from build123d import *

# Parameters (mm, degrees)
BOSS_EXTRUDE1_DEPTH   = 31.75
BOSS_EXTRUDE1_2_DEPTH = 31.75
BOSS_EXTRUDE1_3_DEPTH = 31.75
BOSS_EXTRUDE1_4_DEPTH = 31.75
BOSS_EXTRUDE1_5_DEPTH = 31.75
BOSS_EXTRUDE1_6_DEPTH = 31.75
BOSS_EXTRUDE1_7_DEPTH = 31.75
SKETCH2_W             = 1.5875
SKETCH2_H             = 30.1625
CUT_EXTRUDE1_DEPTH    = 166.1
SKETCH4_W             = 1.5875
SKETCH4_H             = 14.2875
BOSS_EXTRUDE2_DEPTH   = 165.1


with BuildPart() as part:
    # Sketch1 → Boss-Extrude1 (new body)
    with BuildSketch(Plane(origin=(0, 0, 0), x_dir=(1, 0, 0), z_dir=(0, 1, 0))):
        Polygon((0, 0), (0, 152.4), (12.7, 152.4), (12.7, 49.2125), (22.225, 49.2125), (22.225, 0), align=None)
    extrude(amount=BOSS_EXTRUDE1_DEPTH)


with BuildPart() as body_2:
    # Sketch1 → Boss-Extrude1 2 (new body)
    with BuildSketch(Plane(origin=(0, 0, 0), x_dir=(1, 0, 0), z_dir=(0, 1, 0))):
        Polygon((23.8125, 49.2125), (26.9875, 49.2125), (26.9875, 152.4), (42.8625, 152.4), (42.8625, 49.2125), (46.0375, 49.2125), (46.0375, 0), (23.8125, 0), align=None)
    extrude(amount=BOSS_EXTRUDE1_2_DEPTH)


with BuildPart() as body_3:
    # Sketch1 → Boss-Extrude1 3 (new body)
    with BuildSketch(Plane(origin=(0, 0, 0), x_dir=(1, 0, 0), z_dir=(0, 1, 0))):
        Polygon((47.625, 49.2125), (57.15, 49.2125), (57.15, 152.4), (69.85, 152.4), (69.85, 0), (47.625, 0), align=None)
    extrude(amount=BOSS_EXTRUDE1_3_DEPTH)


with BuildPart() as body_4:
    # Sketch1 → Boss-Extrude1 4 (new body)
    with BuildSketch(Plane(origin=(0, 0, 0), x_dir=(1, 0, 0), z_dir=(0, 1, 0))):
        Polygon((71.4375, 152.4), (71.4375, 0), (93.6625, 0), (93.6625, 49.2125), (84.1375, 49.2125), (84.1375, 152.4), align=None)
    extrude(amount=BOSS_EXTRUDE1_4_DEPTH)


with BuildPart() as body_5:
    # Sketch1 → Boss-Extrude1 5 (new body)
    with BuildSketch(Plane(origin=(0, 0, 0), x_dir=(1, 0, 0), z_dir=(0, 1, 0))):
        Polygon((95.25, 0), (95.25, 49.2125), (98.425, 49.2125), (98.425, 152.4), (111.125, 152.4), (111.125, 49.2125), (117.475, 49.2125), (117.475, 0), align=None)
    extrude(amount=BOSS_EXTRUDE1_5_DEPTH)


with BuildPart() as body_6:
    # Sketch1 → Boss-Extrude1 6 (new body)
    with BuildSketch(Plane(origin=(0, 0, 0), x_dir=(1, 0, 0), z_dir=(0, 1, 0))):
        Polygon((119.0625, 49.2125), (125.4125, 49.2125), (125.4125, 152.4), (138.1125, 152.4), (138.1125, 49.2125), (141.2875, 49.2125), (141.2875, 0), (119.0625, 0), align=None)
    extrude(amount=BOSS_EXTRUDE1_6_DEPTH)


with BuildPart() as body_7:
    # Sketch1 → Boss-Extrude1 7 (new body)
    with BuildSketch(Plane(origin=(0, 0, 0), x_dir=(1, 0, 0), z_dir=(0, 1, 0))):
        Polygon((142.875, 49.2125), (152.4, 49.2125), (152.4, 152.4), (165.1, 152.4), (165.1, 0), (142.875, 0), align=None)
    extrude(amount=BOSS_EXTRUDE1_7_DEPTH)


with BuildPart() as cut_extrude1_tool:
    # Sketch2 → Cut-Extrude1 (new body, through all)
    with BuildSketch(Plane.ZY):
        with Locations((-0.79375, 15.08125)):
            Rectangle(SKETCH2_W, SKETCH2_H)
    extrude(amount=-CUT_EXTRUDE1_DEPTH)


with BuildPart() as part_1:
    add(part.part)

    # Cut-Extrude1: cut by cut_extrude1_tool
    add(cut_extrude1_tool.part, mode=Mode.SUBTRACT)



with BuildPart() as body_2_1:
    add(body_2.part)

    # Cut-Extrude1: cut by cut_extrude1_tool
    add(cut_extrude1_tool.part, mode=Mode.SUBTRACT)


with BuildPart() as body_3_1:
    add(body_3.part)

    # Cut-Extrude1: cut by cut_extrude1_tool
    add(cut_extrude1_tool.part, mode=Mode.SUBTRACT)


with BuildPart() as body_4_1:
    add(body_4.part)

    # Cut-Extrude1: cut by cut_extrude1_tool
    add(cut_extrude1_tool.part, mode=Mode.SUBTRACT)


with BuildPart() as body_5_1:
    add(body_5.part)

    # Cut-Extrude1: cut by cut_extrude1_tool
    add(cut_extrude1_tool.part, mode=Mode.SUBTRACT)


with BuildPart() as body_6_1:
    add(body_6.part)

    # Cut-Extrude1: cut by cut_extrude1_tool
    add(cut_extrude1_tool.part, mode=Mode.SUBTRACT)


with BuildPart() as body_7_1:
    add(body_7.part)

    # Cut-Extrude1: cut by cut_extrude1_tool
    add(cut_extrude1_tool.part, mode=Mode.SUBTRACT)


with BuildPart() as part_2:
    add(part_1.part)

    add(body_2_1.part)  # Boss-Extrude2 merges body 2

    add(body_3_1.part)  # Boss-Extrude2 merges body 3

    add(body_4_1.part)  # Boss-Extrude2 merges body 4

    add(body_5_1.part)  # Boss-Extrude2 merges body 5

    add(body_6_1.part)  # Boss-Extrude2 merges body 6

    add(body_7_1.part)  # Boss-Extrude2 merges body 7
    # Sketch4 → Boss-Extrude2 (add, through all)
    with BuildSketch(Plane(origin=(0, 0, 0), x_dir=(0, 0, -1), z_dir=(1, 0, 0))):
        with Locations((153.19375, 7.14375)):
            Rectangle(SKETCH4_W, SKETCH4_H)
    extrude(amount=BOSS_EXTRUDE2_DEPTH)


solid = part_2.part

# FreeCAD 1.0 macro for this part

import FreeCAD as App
import Part
import Sketcher
Q = App.Units.Quantity


def add_polygon(sketch, points):
    """Adds a closed chain of lines whose ends are joined by coincident constraints."""
    first, n = sketch.GeometryCount, len(points)
    for a, b in zip(points, points[1:] + points[:1]):
        sketch.addGeometry(Part.LineSegment(App.Vector(*a, 0), App.Vector(*b, 0)), False)
    for i in range(n):
        sketch.addConstraint(Sketcher.Constraint("Coincident", first + i, 2, first + (i + 1) % n, 1))

doc = App.newDocument("Part")
params = doc.addObject("Spreadsheet::Sheet", "Params")
for row, (alias, value) in enumerate([
    ("sketch1_height", "6 in"),
    ("sketch1_width", "0.5 in"),
    ("sketch1_width2", "0.875 in"),
    ("sketch1_height2", "1.9375 in"),
    ("pad1_length", "1.25 in"),
    ("sketch2_width", "0.125 in"),
    ("sketch2_width2", "0.875 in"),
    ("sketch2_height", "1.9375 in"),
    ("pad2_length", "1.25 in"),
    ("sketch3_height", "6 in"),
    ("sketch3_width", "0.5 in"),
    ("sketch3_width2", "0.375 in"),
    ("sketch3_height2", "1.9375 in"),
    ("pad3_length", "1.25 in"),
    ("sketch4_height", "6 in"),
    ("sketch4_width", "0.5 in"),
    ("sketch4_width2", "0.875 in"),
    ("sketch4_height2", "1.9375 in"),
    ("pad4_length", "1.25 in"),
    ("sketch5_width", "0.5 in"),
    ("sketch5_width2", "0.25 in"),
    ("sketch5_width3", "0.875 in"),
    ("sketch5_height", "1.9375 in"),
    ("pad5_length", "1.25 in"),
    ("sketch6_width", "0.5 in"),
    ("sketch6_width2", "0.25 in"),
    ("sketch6_width3", "0.875 in"),
    ("sketch6_height", "1.9375 in"),
    ("pad6_length", "1.25 in"),
    ("sketch7_height", "6 in"),
    ("sketch7_width", "0.5 in"),
    ("sketch7_width2", "0.375 in"),
    ("sketch7_height2", "1.9375 in"),
    ("pad7_length", "1.25 in"),
    ("sketch8_width", "1.1875 in"),
    ("sketch8_height", "0.0625 in"),
    ("pad8_length", "166.1 mm"),
    ("sketch9_width", "0.5625 in"),
    ("sketch9_height", "0.0625 in"),
    ("pad9_length", "6.5 in"),
], start=1):
    params.set(f"A{row}", alias)
    params.set(f"B{row}", "=" + value)
    params.setAlias(f"B{row}", alias)

body = doc.addObject("PartDesign::Body", "Body")

sketch1 = body.newObject("Sketcher::SketchObject", "Sketch")
sketch1.AttachmentSupport = (doc.getObject("XZ_Plane"), [""])
sketch1.MapMode = "FlatFace"
add_polygon(sketch1, [(0, -152), (0, 0), (22, 0), (22, -49), (13, -49), (13, -152)])
sketch1.addConstraint(Sketcher.Constraint("Vertical", 0))
sketch1.addConstraint(Sketcher.Constraint("Horizontal", 1))
sketch1.addConstraint(Sketcher.Constraint("Vertical", 2))
sketch1.addConstraint(Sketcher.Constraint("Horizontal", 3))
sketch1.addConstraint(Sketcher.Constraint("Vertical", 4))
sketch1.addConstraint(Sketcher.Constraint("Horizontal", 5))
sketch1.addConstraint(Sketcher.Constraint("Coincident", 0, 2, -1, 1))
sketch1.addConstraint(Sketcher.Constraint("DistanceY", 0, 1, 0, 2, Q("6 in")))
sketch1.addConstraint(Sketcher.Constraint("DistanceX", 5, 2, 5, 1, Q("0.5 in")))
sketch1.addConstraint(Sketcher.Constraint("DistanceX", 1, 1, 1, 2, Q("0.875 in")))
sketch1.addConstraint(Sketcher.Constraint("DistanceY", 2, 2, 2, 1, Q("1.9375 in")))
sketch1.setExpression("Constraints[13]", "Params.sketch1_height")
sketch1.setExpression("Constraints[14]", "Params.sketch1_width")
sketch1.setExpression("Constraints[15]", "Params.sketch1_width2")
sketch1.setExpression("Constraints[16]", "Params.sketch1_height2")
pad1 = body.newObject("PartDesign::Pad", "Pad")
pad1.Profile = sketch1
pad1.setExpression("Length", "Params.pad1_length")
pad1.Reversed = True
body2 = doc.addObject("PartDesign::Body", "Body001")

sketch2 = body2.newObject("Sketcher::SketchObject", "Sketch001")
sketch2.AttachmentSupport = (doc.getObject("XZ_Plane001"), [""])
sketch2.MapMode = "FlatFace"
add_polygon(sketch2, [(27, -49.2), (23.8, -49.2), (23.8, 0), (46, 0), (46, -49.2), (42.9, -49.2), (42.9, -152.4), (27, -152.4)])
sketch2.addConstraint(Sketcher.Constraint("Horizontal", 0))
sketch2.addConstraint(Sketcher.Constraint("Vertical", 1))
sketch2.addConstraint(Sketcher.Constraint("Horizontal", 2))
sketch2.addConstraint(Sketcher.Constraint("Vertical", 3))
sketch2.addConstraint(Sketcher.Constraint("Horizontal", 4))
sketch2.addConstraint(Sketcher.Constraint("Vertical", 5))
sketch2.addConstraint(Sketcher.Constraint("Horizontal", 6))
sketch2.addConstraint(Sketcher.Constraint("Vertical", 7))
sketch2.addConstraint(Sketcher.Constraint("PointOnObject", 1, 2, -1))
sketch2.addConstraint(Sketcher.Constraint("Horizontal", 0, 2, 3, 2))
sketch2.addConstraint(Sketcher.Constraint("Equal", 0, 4))
sketch2.addConstraint(Sketcher.Constraint("DistanceY", 5, 2, -1, 1, Q("6 in")))
sketch2.addConstraint(Sketcher.Constraint("DistanceX", 0, 2, 0, 1, Q("0.125 in")))
sketch2.addConstraint(Sketcher.Constraint("DistanceX", 2, 1, 2, 2, Q("0.875 in")))
sketch2.addConstraint(Sketcher.Constraint("DistanceY", 1, 1, 1, 2, Q("1.9375 in")))
sketch2.addConstraint(Sketcher.Constraint("DistanceX", -1, 1, 0, 2, Q("0.9375 in")))
sketch2.setExpression("Constraints[20]", "Params.sketch2_width")
sketch2.setExpression("Constraints[21]", "Params.sketch2_width2")
sketch2.setExpression("Constraints[22]", "Params.sketch2_height")
pad2 = body2.newObject("PartDesign::Pad", "Pad001")
pad2.Profile = sketch2
pad2.setExpression("Length", "Params.pad2_length")
pad2.Reversed = True
body3 = doc.addObject("PartDesign::Body", "Body002")

sketch3 = body3.newObject("Sketcher::SketchObject", "Sketch002")
sketch3.AttachmentSupport = (doc.getObject("XZ_Plane002"), [""])
sketch3.MapMode = "FlatFace"
add_polygon(sketch3, [(57, -49), (48, -49), (48, 0), (70, 0), (70, -152), (57, -152)])
sketch3.addConstraint(Sketcher.Constraint("Horizontal", 0))
sketch3.addConstraint(Sketcher.Constraint("Vertical", 1))
sketch3.addConstraint(Sketcher.Constraint("Horizontal", 2))
sketch3.addConstraint(Sketcher.Constraint("Vertical", 3))
sketch3.addConstraint(Sketcher.Constraint("Horizontal", 4))
sketch3.addConstraint(Sketcher.Constraint("Vertical", 5))
sketch3.addConstraint(Sketcher.Constraint("PointOnObject", 1, 2, -1))
sketch3.addConstraint(Sketcher.Constraint("DistanceY", 3, 2, 3, 1, Q("6 in")))
sketch3.addConstraint(Sketcher.Constraint("DistanceX", 4, 2, 4, 1, Q("0.5 in")))
sketch3.addConstraint(Sketcher.Constraint("DistanceX", 0, 2, 0, 1, Q("0.375 in")))
sketch3.addConstraint(Sketcher.Constraint("DistanceY", 1, 1, 1, 2, Q("1.9375 in")))
sketch3.addConstraint(Sketcher.Constraint("DistanceX", -1, 1, 2, 2, Q("2.75 in")))
sketch3.setExpression("Constraints[13]", "Params.sketch3_height")
sketch3.setExpression("Constraints[14]", "Params.sketch3_width")
sketch3.setExpression("Constraints[15]", "Params.sketch3_width2")
sketch3.setExpression("Constraints[16]", "Params.sketch3_height2")
pad3 = body3.newObject("PartDesign::Pad", "Pad002")
pad3.Profile = sketch3
pad3.setExpression("Length", "Params.pad3_length")
pad3.Reversed = True
body4 = doc.addObject("PartDesign::Body", "Body003")

sketch4 = body4.newObject("Sketcher::SketchObject", "Sketch003")
sketch4.AttachmentSupport = (doc.getObject("XZ_Plane003"), [""])
sketch4.MapMode = "FlatFace"
add_polygon(sketch4, [(71, -152), (71, 0), (94, 0), (94, -49), (84, -49), (84, -152)])
sketch4.addConstraint(Sketcher.Constraint("Vertical", 0))
sketch4.addConstraint(Sketcher.Constraint("Horizontal", 1))
sketch4.addConstraint(Sketcher.Constraint("Vertical", 2))
sketch4.addConstraint(Sketcher.Constraint("Horizontal", 3))
sketch4.addConstraint(Sketcher.Constraint("Vertical", 4))
sketch4.addConstraint(Sketcher.Constraint("Horizontal", 5))
sketch4.addConstraint(Sketcher.Constraint("PointOnObject", 0, 2, -1))
sketch4.addConstraint(Sketcher.Constraint("DistanceY", 0, 1, 0, 2, Q("6 in")))
sketch4.addConstraint(Sketcher.Constraint("DistanceX", 5, 2, 5, 1, Q("0.5 in")))
sketch4.addConstraint(Sketcher.Constraint("DistanceX", 1, 1, 1, 2, Q("0.875 in")))
sketch4.addConstraint(Sketcher.Constraint("DistanceY", 2, 2, 2, 1, Q("1.9375 in")))
sketch4.addConstraint(Sketcher.Constraint("DistanceX", -1, 1, 0, 2, Q("2.8125 in")))
sketch4.setExpression("Constraints[13]", "Params.sketch4_height")
sketch4.setExpression("Constraints[14]", "Params.sketch4_width")
sketch4.setExpression("Constraints[15]", "Params.sketch4_width2")
sketch4.setExpression("Constraints[16]", "Params.sketch4_height2")
pad4 = body4.newObject("PartDesign::Pad", "Pad003")
pad4.Profile = sketch4
pad4.setExpression("Length", "Params.pad4_length")
pad4.Reversed = True
body5 = doc.addObject("PartDesign::Body", "Body004")

sketch5 = body5.newObject("Sketcher::SketchObject", "Sketch004")
sketch5.AttachmentSupport = (doc.getObject("XZ_Plane004"), [""])
sketch5.MapMode = "FlatFace"
add_polygon(sketch5, [(95.2, -49.2), (95.2, 0), (117.5, 0), (117.5, -49.2), (111.1, -49.2), (111.1, -152.4), (98.4, -152.4), (98.4, -49.2)])
sketch5.addConstraint(Sketcher.Constraint("Vertical", 0))
sketch5.addConstraint(Sketcher.Constraint("Horizontal", 1))
sketch5.addConstraint(Sketcher.Constraint("Vertical", 2))
sketch5.addConstraint(Sketcher.Constraint("Horizontal", 3))
sketch5.addConstraint(Sketcher.Constraint("Vertical", 4))
sketch5.addConstraint(Sketcher.Constraint("Horizontal", 5))
sketch5.addConstraint(Sketcher.Constraint("Vertical", 6))
sketch5.addConstraint(Sketcher.Constraint("Horizontal", 7))
sketch5.addConstraint(Sketcher.Constraint("PointOnObject", 0, 2, -1))
sketch5.addConstraint(Sketcher.Constraint("Horizontal", 3, 2, 6, 2))
sketch5.addConstraint(Sketcher.Constraint("DistanceX", 5, 2, 5, 1, Q("0.5 in")))
sketch5.addConstraint(Sketcher.Constraint("DistanceY", 4, 2, -1, 1, Q("6 in")))
sketch5.addConstraint(Sketcher.Constraint("DistanceX", 3, 2, 3, 1, Q("0.25 in")))
sketch5.addConstraint(Sketcher.Constraint("DistanceX", 1, 1, 1, 2, Q("0.875 in")))
sketch5.addConstraint(Sketcher.Constraint("DistanceY", 0, 1, 0, 2, Q("1.9375 in")))
sketch5.addConstraint(Sketcher.Constraint("DistanceX", -1, 1, 0, 2, Q("3.75 in")))
sketch5.setExpression("Constraints[18]", "Params.sketch5_width")
sketch5.setExpression("Constraints[20]", "Params.sketch5_width2")
sketch5.setExpression("Constraints[21]", "Params.sketch5_width3")
sketch5.setExpression("Constraints[22]", "Params.sketch5_height")
pad5 = body5.newObject("PartDesign::Pad", "Pad004")
pad5.Profile = sketch5
pad5.setExpression("Length", "Params.pad5_length")
pad5.Reversed = True
body6 = doc.addObject("PartDesign::Body", "Body005")

sketch6 = body6.newObject("Sketcher::SketchObject", "Sketch005")
sketch6.AttachmentSupport = (doc.getObject("XZ_Plane005"), [""])
sketch6.MapMode = "FlatFace"
add_polygon(sketch6, [(125.4, -49.2), (119.1, -49.2), (119.1, 0), (141.3, 0), (141.3, -49.2), (138.1, -49.2), (138.1, -152.4), (125.4, -152.4)])
sketch6.addConstraint(Sketcher.Constraint("Horizontal", 0))
sketch6.addConstraint(Sketcher.Constraint("Vertical", 1))
sketch6.addConstraint(Sketcher.Constraint("Horizontal", 2))
sketch6.addConstraint(Sketcher.Constraint("Vertical", 3))
sketch6.addConstraint(Sketcher.Constraint("Horizontal", 4))
sketch6.addConstraint(Sketcher.Constraint("Vertical", 5))
sketch6.addConstraint(Sketcher.Constraint("Horizontal", 6))
sketch6.addConstraint(Sketcher.Constraint("Vertical", 7))
sketch6.addConstraint(Sketcher.Constraint("PointOnObject", 1, 2, -1))
sketch6.addConstraint(Sketcher.Constraint("Horizontal", 0, 2, 3, 2))
sketch6.addConstraint(Sketcher.Constraint("DistanceX", 6, 2, 6, 1, Q("0.5 in")))
sketch6.addConstraint(Sketcher.Constraint("DistanceY", 5, 2, -1, 1, Q("6 in")))
sketch6.addConstraint(Sketcher.Constraint("DistanceX", 0, 2, 0, 1, Q("0.25 in")))
sketch6.addConstraint(Sketcher.Constraint("DistanceX", 2, 1, 2, 2, Q("0.875 in")))
sketch6.addConstraint(Sketcher.Constraint("DistanceY", 1, 1, 1, 2, Q("1.9375 in")))
sketch6.addConstraint(Sketcher.Constraint("DistanceX", -1, 1, 0, 2, Q("4.6875 in")))
sketch6.setExpression("Constraints[18]", "Params.sketch6_width")
sketch6.setExpression("Constraints[20]", "Params.sketch6_width2")
sketch6.setExpression("Constraints[21]", "Params.sketch6_width3")
sketch6.setExpression("Constraints[22]", "Params.sketch6_height")
pad6 = body6.newObject("PartDesign::Pad", "Pad005")
pad6.Profile = sketch6
pad6.setExpression("Length", "Params.pad6_length")
pad6.Reversed = True
body7 = doc.addObject("PartDesign::Body", "Body006")

sketch7 = body7.newObject("Sketcher::SketchObject", "Sketch006")
sketch7.AttachmentSupport = (doc.getObject("XZ_Plane006"), [""])
sketch7.MapMode = "FlatFace"
add_polygon(sketch7, [(152, -49), (143, -49), (143, 0), (165, 0), (165, -152), (152, -152)])
sketch7.addConstraint(Sketcher.Constraint("Horizontal", 0))
sketch7.addConstraint(Sketcher.Constraint("Vertical", 1))
sketch7.addConstraint(Sketcher.Constraint("Horizontal", 2))
sketch7.addConstraint(Sketcher.Constraint("Vertical", 3))
sketch7.addConstraint(Sketcher.Constraint("Horizontal", 4))
sketch7.addConstraint(Sketcher.Constraint("Vertical", 5))
sketch7.addConstraint(Sketcher.Constraint("PointOnObject", 1, 2, -1))
sketch7.addConstraint(Sketcher.Constraint("DistanceY", 3, 2, 3, 1, Q("6 in")))
sketch7.addConstraint(Sketcher.Constraint("DistanceX", 4, 2, 4, 1, Q("0.5 in")))
sketch7.addConstraint(Sketcher.Constraint("DistanceX", -1, 1, 4, 2, Q("6 in")))
sketch7.addConstraint(Sketcher.Constraint("DistanceX", 0, 2, 0, 1, Q("0.375 in")))
sketch7.addConstraint(Sketcher.Constraint("DistanceY", 1, 1, 1, 2, Q("1.9375 in")))
sketch7.setExpression("Constraints[13]", "Params.sketch7_height")
sketch7.setExpression("Constraints[14]", "Params.sketch7_width")
sketch7.setExpression("Constraints[16]", "Params.sketch7_width2")
sketch7.setExpression("Constraints[17]", "Params.sketch7_height2")
pad7 = body7.newObject("PartDesign::Pad", "Pad006")
pad7.Profile = sketch7
pad7.setExpression("Length", "Params.pad7_length")
pad7.Reversed = True
body8 = doc.addObject("PartDesign::Body", "Body007")

sketch8 = body8.newObject("Sketcher::SketchObject", "Sketch007")
sketch8.AttachmentSupport = (doc.getObject("YZ_Plane007"), [""])
sketch8.MapMode = "FlatFace"
add_polygon(sketch8, [(30.2, -1.6), (0, -1.6), (0, 0), (30.2, 0)])
sketch8.addConstraint(Sketcher.Constraint("Horizontal", 0))
sketch8.addConstraint(Sketcher.Constraint("Vertical", 1))
sketch8.addConstraint(Sketcher.Constraint("Horizontal", 2))
sketch8.addConstraint(Sketcher.Constraint("Vertical", 3))
sketch8.addConstraint(Sketcher.Constraint("Coincident", 1, 2, -1, 1))
sketch8.addConstraint(Sketcher.Constraint("DistanceX", 0, 2, 0, 1, Q("1.1875 in")))
sketch8.addConstraint(Sketcher.Constraint("DistanceY", 1, 1, 1, 2, Q("0.0625 in")))
sketch8.setExpression("Constraints[9]", "Params.sketch8_width")
sketch8.setExpression("Constraints[10]", "Params.sketch8_height")
pad8 = body8.newObject("PartDesign::Pad", "Pad007")
pad8.Profile = sketch8
pad8.setExpression("Length", "Params.pad8_length")
doc.recompute()

body9 = doc.addObject("PartDesign::Body", "Body008")
body9.BaseFeature = body8
boolean = body.newObject("PartDesign::Boolean", "Boolean")
boolean.Type = "Cut"
boolean.addObjects([body9])
doc.recompute()

body10 = doc.addObject("PartDesign::Body", "Body009")
body10.BaseFeature = body8
boolean2 = body2.newObject("PartDesign::Boolean", "Boolean001")
boolean2.Type = "Cut"
boolean2.addObjects([body10])
doc.recompute()

body11 = doc.addObject("PartDesign::Body", "Body010")
body11.BaseFeature = body8
boolean3 = body3.newObject("PartDesign::Boolean", "Boolean002")
boolean3.Type = "Cut"
boolean3.addObjects([body11])
doc.recompute()

body12 = doc.addObject("PartDesign::Body", "Body011")
body12.BaseFeature = body8
boolean4 = body4.newObject("PartDesign::Boolean", "Boolean003")
boolean4.Type = "Cut"
boolean4.addObjects([body12])
doc.recompute()

body13 = doc.addObject("PartDesign::Body", "Body012")
body13.BaseFeature = body8
boolean5 = body5.newObject("PartDesign::Boolean", "Boolean004")
boolean5.Type = "Cut"
boolean5.addObjects([body13])
doc.recompute()

body14 = doc.addObject("PartDesign::Body", "Body013")
body14.BaseFeature = body8
boolean6 = body6.newObject("PartDesign::Boolean", "Boolean005")
boolean6.Type = "Cut"
boolean6.addObjects([body14])
doc.recompute()

boolean7 = body7.newObject("PartDesign::Boolean", "Boolean006")
boolean7.Type = "Cut"
boolean7.addObjects([body8])
body.AllowCompound = True
doc.recompute()

boolean8 = body.newObject("PartDesign::Boolean", "Boolean007")
boolean8.Type = "Fuse"
boolean8.addObjects([body2])
doc.recompute()

boolean9 = body.newObject("PartDesign::Boolean", "Boolean008")
boolean9.Type = "Fuse"
boolean9.addObjects([body3])
doc.recompute()

boolean10 = body.newObject("PartDesign::Boolean", "Boolean009")
boolean10.Type = "Fuse"
boolean10.addObjects([body4])
doc.recompute()

boolean11 = body.newObject("PartDesign::Boolean", "Boolean010")
boolean11.Type = "Fuse"
boolean11.addObjects([body5])
doc.recompute()

boolean12 = body.newObject("PartDesign::Boolean", "Boolean011")
boolean12.Type = "Fuse"
boolean12.addObjects([body6])
doc.recompute()

boolean13 = body.newObject("PartDesign::Boolean", "Boolean012")
boolean13.Type = "Fuse"
boolean13.addObjects([body7])

sketch9 = body.newObject("Sketcher::SketchObject", "Sketch008")
sketch9.AttachmentSupport = (doc.getObject("YZ_Plane"), [""])
sketch9.MapMode = "FlatFace"
add_polygon(sketch9, [(14.3, -152.4), (0, -152.4), (0, -154), (14.3, -154)])
sketch9.addConstraint(Sketcher.Constraint("Horizontal", 0))
sketch9.addConstraint(Sketcher.Constraint("Vertical", 1))
sketch9.addConstraint(Sketcher.Constraint("Horizontal", 2))
sketch9.addConstraint(Sketcher.Constraint("Vertical", 3))
sketch9.addConstraint(Sketcher.Constraint("PointOnObject", 0, 2, -2))
sketch9.addConstraint(Sketcher.Constraint("DistanceY", 0, 2, -1, 1, Q("6 in")))
sketch9.addConstraint(Sketcher.Constraint("DistanceX", 0, 2, 0, 1, Q("0.5625 in")))
sketch9.addConstraint(Sketcher.Constraint("DistanceY", 1, 2, 1, 1, Q("0.0625 in")))
sketch9.setExpression("Constraints[10]", "Params.sketch9_width")
sketch9.setExpression("Constraints[11]", "Params.sketch9_height")
pad9 = body.newObject("PartDesign::Pad", "Pad008")
pad9.Profile = sketch9
pad9.setExpression("Length", "Params.pad9_length")

doc.recompute()
